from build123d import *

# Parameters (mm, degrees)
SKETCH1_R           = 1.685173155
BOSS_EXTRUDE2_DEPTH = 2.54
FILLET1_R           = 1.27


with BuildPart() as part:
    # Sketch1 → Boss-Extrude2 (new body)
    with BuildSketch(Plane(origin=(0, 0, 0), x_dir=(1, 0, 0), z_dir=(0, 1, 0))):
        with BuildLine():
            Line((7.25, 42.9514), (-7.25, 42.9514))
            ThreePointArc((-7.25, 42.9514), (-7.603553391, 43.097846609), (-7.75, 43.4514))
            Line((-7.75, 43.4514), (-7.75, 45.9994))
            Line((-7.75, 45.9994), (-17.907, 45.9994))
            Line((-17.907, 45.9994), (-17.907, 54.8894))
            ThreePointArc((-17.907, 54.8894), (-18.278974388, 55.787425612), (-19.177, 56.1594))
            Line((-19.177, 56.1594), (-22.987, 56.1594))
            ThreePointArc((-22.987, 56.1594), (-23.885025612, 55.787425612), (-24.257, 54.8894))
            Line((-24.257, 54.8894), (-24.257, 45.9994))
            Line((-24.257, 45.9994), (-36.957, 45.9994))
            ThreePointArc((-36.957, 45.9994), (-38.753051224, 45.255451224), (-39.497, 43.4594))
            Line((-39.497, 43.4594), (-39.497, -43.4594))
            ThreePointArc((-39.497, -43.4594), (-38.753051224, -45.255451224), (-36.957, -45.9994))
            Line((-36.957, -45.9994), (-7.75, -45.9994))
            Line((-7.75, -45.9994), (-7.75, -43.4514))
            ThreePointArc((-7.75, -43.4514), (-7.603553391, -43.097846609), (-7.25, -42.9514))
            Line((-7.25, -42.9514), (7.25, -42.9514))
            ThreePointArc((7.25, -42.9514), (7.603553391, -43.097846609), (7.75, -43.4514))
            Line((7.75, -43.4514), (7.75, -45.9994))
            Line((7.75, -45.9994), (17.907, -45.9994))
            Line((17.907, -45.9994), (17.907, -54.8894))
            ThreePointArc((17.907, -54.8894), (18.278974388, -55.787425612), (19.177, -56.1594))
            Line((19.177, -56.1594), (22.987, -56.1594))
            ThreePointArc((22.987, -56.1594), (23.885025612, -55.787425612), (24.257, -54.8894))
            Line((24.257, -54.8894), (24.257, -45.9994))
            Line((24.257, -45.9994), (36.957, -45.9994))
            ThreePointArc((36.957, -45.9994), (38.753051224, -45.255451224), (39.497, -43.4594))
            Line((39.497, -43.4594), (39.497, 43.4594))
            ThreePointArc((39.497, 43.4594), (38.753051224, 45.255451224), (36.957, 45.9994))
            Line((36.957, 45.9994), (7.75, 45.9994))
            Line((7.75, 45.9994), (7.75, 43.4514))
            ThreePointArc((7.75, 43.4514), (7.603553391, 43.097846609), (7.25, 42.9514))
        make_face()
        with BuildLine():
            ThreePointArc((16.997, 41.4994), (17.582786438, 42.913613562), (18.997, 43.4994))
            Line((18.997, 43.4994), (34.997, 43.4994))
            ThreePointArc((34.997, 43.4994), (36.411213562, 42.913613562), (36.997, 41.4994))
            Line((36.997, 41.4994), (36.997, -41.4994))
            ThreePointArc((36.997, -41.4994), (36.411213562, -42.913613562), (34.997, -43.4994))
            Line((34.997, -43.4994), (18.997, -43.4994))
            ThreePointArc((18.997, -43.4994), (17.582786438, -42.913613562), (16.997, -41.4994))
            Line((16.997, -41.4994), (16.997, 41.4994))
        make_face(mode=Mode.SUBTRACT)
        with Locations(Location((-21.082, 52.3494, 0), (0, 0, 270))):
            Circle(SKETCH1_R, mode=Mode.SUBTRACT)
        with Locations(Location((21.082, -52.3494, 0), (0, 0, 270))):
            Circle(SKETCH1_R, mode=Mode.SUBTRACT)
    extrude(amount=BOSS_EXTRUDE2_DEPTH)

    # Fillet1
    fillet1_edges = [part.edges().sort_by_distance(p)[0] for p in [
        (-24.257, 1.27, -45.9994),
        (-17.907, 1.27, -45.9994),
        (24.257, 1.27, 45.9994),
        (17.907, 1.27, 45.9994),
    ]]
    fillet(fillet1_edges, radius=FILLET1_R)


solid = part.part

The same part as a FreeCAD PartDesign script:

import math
import FreeCAD as App
import Part
import Sketcher
from FreeCAD import Vector
Q = App.Units.Quantity


def edges_at(feature, points):
    """Names of the edges that pass closest to the given points."""
    edges = feature.Shape.Edges
    near = lambda p: min(range(len(edges)), key=lambda i: edges[i].distToShape(Part.Vertex(*p))[0])
    return sorted({f"Edge{near(p) + 1}" for p in points})

doc = App.newDocument("Part")
body = doc.addObject("PartDesign::Body", "Body")

# Sketch on XZ plane
sketch1 = doc.addObject("Sketcher::SketchObject", "Sketch")
body.addObject(sketch1)
sketch1.AttachmentSupport = (doc.XZ_Plane, [""])
sketch1.MapMode = "FlatFace"
sketch1.addGeometry(Part.LineSegment(Vector(7.25, -42.95, 0), Vector(-7.25, -42.95, 0)), False)
sketch1.addGeometry(Part.ArcOfCircle(Part.Circle(Vector(-7.25, -43.45, 0), Vector(0, 0, 1), 0.5), math.radians(90), math.radians(180)), False)
sketch1.addGeometry(Part.LineSegment(Vector(-7.75, -43.45, 0), Vector(-7.75, -46, 0)), False)
sketch1.addGeometry(Part.LineSegment(Vector(-7.75, -46, 0), Vector(-17.91, -46, 0)), False)
sketch1.addGeometry(Part.LineSegment(Vector(-17.91, -46, 0), Vector(-17.91, -54.89, 0)), False)
sketch1.addGeometry(Part.ArcOfCircle(Part.Circle(Vector(-19.18, -54.89, 0), Vector(0, 0, 1), 1.27), math.radians(-90), math.radians(0)), False)
sketch1.addGeometry(Part.LineSegment(Vector(-19.18, -56.16, 0), Vector(-22.99, -56.16, 0)), False)
sketch1.addGeometry(Part.ArcOfCircle(Part.Circle(Vector(-22.99, -54.89, 0), Vector(0, 0, 1), 1.27), math.radians(180), math.radians(270)), False)
sketch1.addGeometry(Part.LineSegment(Vector(-24.26, -54.89, 0), Vector(-24.26, -46, 0)), False)
sketch1.addGeometry(Part.LineSegment(Vector(-24.26, -46, 0), Vector(-36.96, -46, 0)), False)
sketch1.addGeometry(Part.ArcOfCircle(Part.Circle(Vector(-36.96, -43.46, 0), Vector(0, 0, 1), 2.54), math.radians(-180), math.radians(-90)), False)
sketch1.addGeometry(Part.LineSegment(Vector(-39.5, -43.46, 0), Vector(-39.5, 43.46, 0)), False)
sketch1.addGeometry(Part.ArcOfCircle(Part.Circle(Vector(-36.96, 43.46, 0), Vector(0, 0, 1), 2.54), math.radians(90), math.radians(180)), False)
sketch1.addGeometry(Part.LineSegment(Vector(-36.96, 46, 0), Vector(-7.75, 46, 0)), False)
sketch1.addGeometry(Part.LineSegment(Vector(-7.75, 46, 0), Vector(-7.75, 43.45, 0)), False)
sketch1.addGeometry(Part.ArcOfCircle(Part.Circle(Vector(-7.25, 43.45, 0), Vector(0, 0, 1), 0.5), math.radians(180), math.radians(270)), False)
sketch1.addGeometry(Part.LineSegment(Vector(-7.25, 42.95, 0), Vector(7.25, 42.95, 0)), False)
sketch1.addGeometry(Part.ArcOfCircle(Part.Circle(Vector(7.25, 43.45, 0), Vector(0, 0, 1), 0.5), math.radians(-90), math.radians(0)), False)
sketch1.addGeometry(Part.LineSegment(Vector(7.75, 43.45, 0), Vector(7.75, 46, 0)), False)
sketch1.addGeometry(Part.LineSegment(Vector(7.75, 46, 0), Vector(17.91, 46, 0)), False)
sketch1.addGeometry(Part.LineSegment(Vector(17.91, 46, 0), Vector(17.91, 54.89, 0)), False)
sketch1.addGeometry(Part.ArcOfCircle(Part.Circle(Vector(19.18, 54.89, 0), Vector(0, 0, 1), 1.27), math.radians(90), math.radians(180)), False)
sketch1.addGeometry(Part.LineSegment(Vector(19.18, 56.16, 0), Vector(22.99, 56.16, 0)), False)
sketch1.addGeometry(Part.ArcOfCircle(Part.Circle(Vector(22.99, 54.89, 0), Vector(0, 0, 1), 1.27), math.radians(0), math.radians(90)), False)
sketch1.addGeometry(Part.LineSegment(Vector(24.26, 54.89, 0), Vector(24.26, 46, 0)), False)
sketch1.addGeometry(Part.LineSegment(Vector(24.26, 46, 0), Vector(36.96, 46, 0)), False)
sketch1.addGeometry(Part.ArcOfCircle(Part.Circle(Vector(36.96, 43.46, 0), Vector(0, 0, 1), 2.54), math.radians(0), math.radians(90)), False)
sketch1.addGeometry(Part.LineSegment(Vector(39.5, 43.46, 0), Vector(39.5, -43.46, 0)), False)
sketch1.addGeometry(Part.ArcOfCircle(Part.Circle(Vector(36.96, -43.46, 0), Vector(0, 0, 1), 2.54), math.radians(-90), math.radians(0)), False)
sketch1.addGeometry(Part.LineSegment(Vector(36.96, -46, 0), Vector(7.75, -46, 0)), False)
sketch1.addGeometry(Part.LineSegment(Vector(7.75, -46, 0), Vector(7.75, -43.45, 0)), False)
sketch1.addGeometry(Part.ArcOfCircle(Part.Circle(Vector(7.25, -43.45, 0), Vector(0, 0, 1), 0.5), math.radians(0), math.radians(90)), False)
sketch1.addGeometry(Part.Circle(Vector(21.08, 52.35, 0), Vector(0, 0, 1), 1.69), False)
sketch1.addGeometry(Part.LineSegment(Vector(17, 41.5, 0), Vector(17, -41.5, 0)), False)
sketch1.addGeometry(Part.ArcOfCircle(Part.Circle(Vector(19, -41.5, 0), Vector(0, 0, 1), 2), math.radians(-180), math.radians(-90)), False)
sketch1.addGeometry(Part.LineSegment(Vector(19, -43.5, 0), Vector(35, -43.5, 0)), False)
sketch1.addGeometry(Part.ArcOfCircle(Part.Circle(Vector(35, -41.5, 0), Vector(0, 0, 1), 2), math.radians(-90), math.radians(0)), False)
sketch1.addGeometry(Part.LineSegment(Vector(37, -41.5, 0), Vector(37, 41.5, 0)), False)
sketch1.addGeometry(Part.ArcOfCircle(Part.Circle(Vector(35, 41.5, 0), Vector(0, 0, 1), 2), math.radians(0), math.radians(90)), False)
sketch1.addGeometry(Part.LineSegment(Vector(35, 43.5, 0), Vector(19, 43.5, 0)), False)
sketch1.addGeometry(Part.ArcOfCircle(Part.Circle(Vector(19, 41.5, 0), Vector(0, 0, 1), 2), math.radians(90), math.radians(180)), False)
sketch1.addGeometry(Part.Circle(Vector(-21.08, -52.35, 0), Vector(0, 0, 1), 1.69), False)
sketch1.addConstraint(Sketcher.Constraint("Tangent", 0, 2, 1, 1))
sketch1.addConstraint(Sketcher.Constraint("Tangent", 1, 2, 2, 1))
sketch1.addConstraint(Sketcher.Constraint("Coincident", 2, 2, 3, 1))
sketch1.addConstraint(Sketcher.Constraint("Coincident", 3, 2, 4, 1))
sketch1.addConstraint(Sketcher.Constraint("Tangent", 4, 2, 5, 2))
sketch1.addConstraint(Sketcher.Constraint("Tangent", 5, 1, 6, 1))
sketch1.addConstraint(Sketcher.Constraint("Tangent", 6, 2, 7, 2))
sketch1.addConstraint(Sketcher.Constraint("Tangent", 7, 1, 8, 1))
sketch1.addConstraint(Sketcher.Constraint("Coincident", 8, 2, 9, 1))
sketch1.addConstraint(Sketcher.Constraint("Tangent", 9, 2, 10, 2))
sketch1.addConstraint(Sketcher.Constraint("Tangent", 10, 1, 11, 1))
sketch1.addConstraint(Sketcher.Constraint("Tangent", 11, 2, 12, 2))
sketch1.addConstraint(Sketcher.Constraint("Tangent", 12, 1, 13, 1))
sketch1.addConstraint(Sketcher.Constraint("Coincident", 13, 2, 14, 1))
sketch1.addConstraint(Sketcher.Constraint("Tangent", 14, 2, 15, 1))
sketch1.addConstraint(Sketcher.Constraint("Tangent", 15, 2, 16, 1))
sketch1.addConstraint(Sketcher.Constraint("Tangent", 16, 2, 17, 1))
sketch1.addConstraint(Sketcher.Constraint("Tangent", 17, 2, 18, 1))
sketch1.addConstraint(Sketcher.Constraint("Coincident", 18, 2, 19, 1))
sketch1.addConstraint(Sketcher.Constraint("Coincident", 19, 2, 20, 1))
sketch1.addConstraint(Sketcher.Constraint("Tangent", 20, 2, 21, 2))
sketch1.addConstraint(Sketcher.Constraint("Tangent", 21, 1, 22, 1))
sketch1.addConstraint(Sketcher.Constraint("Tangent", 22, 2, 23, 2))
sketch1.addConstraint(Sketcher.Constraint("Tangent", 23, 1, 24, 1))
sketch1.addConstraint(Sketcher.Constraint("Coincident", 24, 2, 25, 1))
sketch1.addConstraint(Sketcher.Constraint("Tangent", 25, 2, 26, 2))
sketch1.addConstraint(Sketcher.Constraint("Tangent", 26, 1, 27, 1))
sketch1.addConstraint(Sketcher.Constraint("Tangent", 27, 2, 28, 2))
sketch1.addConstraint(Sketcher.Constraint("Tangent", 28, 1, 29, 1))
sketch1.addConstraint(Sketcher.Constraint("Coincident", 29, 2, 30, 1))
sketch1.addConstraint(Sketcher.Constraint("Tangent", 30, 2, 31, 1))
sketch1.addConstraint(Sketcher.Constraint("Tangent", 31, 2, 0, 1))
sketch1.addConstraint(Sketcher.Constraint("Tangent", 33, 2, 34, 1))
sketch1.addConstraint(Sketcher.Constraint("Tangent", 34, 2, 35, 1))
sketch1.addConstraint(Sketcher.Constraint("Tangent", 35, 2, 36, 1))
sketch1.addConstraint(Sketcher.Constraint("Tangent", 36, 2, 37, 1))
sketch1.addConstraint(Sketcher.Constraint("Tangent", 37, 2, 38, 1))
sketch1.addConstraint(Sketcher.Constraint("Tangent", 38, 2, 39, 1))
sketch1.addConstraint(Sketcher.Constraint("Tangent", 39, 2, 40, 1))
sketch1.addConstraint(Sketcher.Constraint("Tangent", 40, 2, 33, 1))
sketch1.addConstraint(Sketcher.Constraint("Horizontal", 0))
sketch1.addConstraint(Sketcher.Constraint("Vertical", 2))
sketch1.addConstraint(Sketcher.Constraint("Horizontal", 3))
sketch1.addConstraint(Sketcher.Constraint("Vertical", 4))
sketch1.addConstraint(Sketcher.Constraint("Horizontal", 6))
sketch1.addConstraint(Sketcher.Constraint("Vertical", 8))
sketch1.addConstraint(Sketcher.Constraint("Horizontal", 9))
sketch1.addConstraint(Sketcher.Constraint("Vertical", 11))
sketch1.addConstraint(Sketcher.Constraint("Horizontal", 13))
sketch1.addConstraint(Sketcher.Constraint("Vertical", 14))
sketch1.addConstraint(Sketcher.Constraint("Horizontal", 16))
sketch1.addConstraint(Sketcher.Constraint("Vertical", 18))
sketch1.addConstraint(Sketcher.Constraint("Horizontal", 19))
sketch1.addConstraint(Sketcher.Constraint("Vertical", 20))
sketch1.addConstraint(Sketcher.Constraint("Horizontal", 22))
sketch1.addConstraint(Sketcher.Constraint("Vertical", 24))
sketch1.addConstraint(Sketcher.Constraint("Horizontal", 25))
sketch1.addConstraint(Sketcher.Constraint("Vertical", 27))
sketch1.addConstraint(Sketcher.Constraint("Horizontal", 29))
sketch1.addConstraint(Sketcher.Constraint("Vertical", 30))
sketch1.addConstraint(Sketcher.Constraint("Vertical", 33))
sketch1.addConstraint(Sketcher.Constraint("Horizontal", 35))
sketch1.addConstraint(Sketcher.Constraint("Vertical", 37))
sketch1.addConstraint(Sketcher.Constraint("Horizontal", 39))
sketch1.addConstraint(Sketcher.Constraint("Equal", 5, 7))
sketch1.addConstraint(Sketcher.Constraint("Equal", 10, 12))
sketch1.addConstraint(Sketcher.Constraint("Equal", 1, 15))
sketch1.addConstraint(Sketcher.Constraint("Equal", 15, 17))
sketch1.addConstraint(Sketcher.Constraint("Equal", 7, 21))
sketch1.addConstraint(Sketcher.Constraint("Equal", 21, 23))
sketch1.addConstraint(Sketcher.Constraint("Equal", 12, 26))
sketch1.addConstraint(Sketcher.Constraint("Equal", 26, 28))
sketch1.addConstraint(Sketcher.Constraint("Equal", 17, 31))
sketch1.addConstraint(Sketcher.Constraint("Equal", 34, 36))
sketch1.addConstraint(Sketcher.Constraint("Equal", 36, 38))
sketch1.addConstraint(Sketcher.Constraint("Equal", 38, 40))
sketch1.addConstraint(Sketcher.Constraint("Equal", 32, 41))
sketch1.addConstraint(Sketcher.Constraint("Symmetric", 1, 3, 17, 3, -1, 1))
sketch1.addConstraint(Sketcher.Constraint("Symmetric", 5, 3, 21, 3, -1, 1))
sketch1.addConstraint(Sketcher.Constraint("Symmetric", 10, 3, 26, 3, -1, 1))
sketch1.addConstraint(Sketcher.Constraint("Symmetric", 32, 3, 41, 3, -1, 1))
sketch1.addConstraint(Sketcher.Constraint("Symmetric", 13, 2, 29, 2, -1, 1))
sketch1.addConstraint(Sketcher.Constraint("Symmetric", 13, 2, 18, 2, -2))
sketch1.addConstraint(Sketcher.Constraint("Horizontal", 12, 3, 26, 3))
sketch1.addConstraint(Sketcher.Constraint("Horizontal", 3, 2, 8, 2))
sketch1.addConstraint(Sketcher.Constraint("Equal", 6, 22))
sketch1.addConstraint(Sketcher.Constraint("Radius", 10, Q("0.1 in")))
sketch1.addConstraint(Sketcher.Constraint("Radius", 5, Q("0.05 in")))
sketch1.addConstraint(Sketcher.Constraint("DistanceX", 9, 2, 9, 1, Q("0.5 in")))
sketch1.addConstraint(Sketcher.Constraint("DistanceX", 6, 2, 6, 1, Q("0.15 in")))
sketch1.addConstraint(Sketcher.Constraint("DistanceY", 4, 2, 4, 1, Q("0.35 in")))
sketch1.addConstraint(Sketcher.Constraint("DistanceY", 32, 3, 23, 3, Q("0.1 in")))
sketch1.addConstraint(Sketcher.Constraint("DistanceY", 11, 1, 11, 2, Q("3.422 in")))
sketch1.addConstraint(Sketcher.Constraint("DistanceX", -1, 1, 32, 3, Q("0.83 in")))
sketch1.addConstraint(Sketcher.Constraint("Radius", 1, 0.5))
sketch1.addConstraint(Sketcher.Constraint("Radius", 34, 2.0))
sketch1.addConstraint(Sketcher.Constraint("DistanceX", 12, 3, 21, 3, Q("2.21 in")))
sketch1.addConstraint(Sketcher.Constraint("DistanceY", 41, 3, 0, 2, Q("0.37 in")))
sketch1.addConstraint(Sketcher.Constraint("Diameter", 32, 3.370346))
sketch1.addConstraint(Sketcher.Constraint("DistanceX", 0, 2, 0, 1, 14.5))
sketch1.addConstraint(Sketcher.Constraint("DistanceX", 35, 1, 35, 2, 16.0))
sketch1.addConstraint(Sketcher.Constraint("DistanceY", 33, 2, 33, 1, 82.9988))
sketch1.addConstraint(Sketcher.Constraint("DistanceX", -1, 1, 34, 3, 18.997))
sketch1.addConstraint(Sketcher.Constraint("DistanceY", 34, 3, -1, 1, 41.4994))
pad1 = doc.addObject("PartDesign::Pad", "Pad")
body.addObject(pad1)
pad1.Profile = sketch1
pad1.Length = Q("0.1 in")
pad1.Reversed = True
doc.recompute()

fillet = doc.addObject("PartDesign::Fillet", "Fillet")
body.addObject(fillet)
fillet.Base = (pad1, edges_at(pad1, [
    (-24.257, 1.27, -45.999),
    (-17.907, 1.27, -45.999),
    (24.257, 1.27, 45.999),
    (17.907, 1.27, 45.999),
]))
fillet.Radius = Q("0.05 in")

doc.recompute()
